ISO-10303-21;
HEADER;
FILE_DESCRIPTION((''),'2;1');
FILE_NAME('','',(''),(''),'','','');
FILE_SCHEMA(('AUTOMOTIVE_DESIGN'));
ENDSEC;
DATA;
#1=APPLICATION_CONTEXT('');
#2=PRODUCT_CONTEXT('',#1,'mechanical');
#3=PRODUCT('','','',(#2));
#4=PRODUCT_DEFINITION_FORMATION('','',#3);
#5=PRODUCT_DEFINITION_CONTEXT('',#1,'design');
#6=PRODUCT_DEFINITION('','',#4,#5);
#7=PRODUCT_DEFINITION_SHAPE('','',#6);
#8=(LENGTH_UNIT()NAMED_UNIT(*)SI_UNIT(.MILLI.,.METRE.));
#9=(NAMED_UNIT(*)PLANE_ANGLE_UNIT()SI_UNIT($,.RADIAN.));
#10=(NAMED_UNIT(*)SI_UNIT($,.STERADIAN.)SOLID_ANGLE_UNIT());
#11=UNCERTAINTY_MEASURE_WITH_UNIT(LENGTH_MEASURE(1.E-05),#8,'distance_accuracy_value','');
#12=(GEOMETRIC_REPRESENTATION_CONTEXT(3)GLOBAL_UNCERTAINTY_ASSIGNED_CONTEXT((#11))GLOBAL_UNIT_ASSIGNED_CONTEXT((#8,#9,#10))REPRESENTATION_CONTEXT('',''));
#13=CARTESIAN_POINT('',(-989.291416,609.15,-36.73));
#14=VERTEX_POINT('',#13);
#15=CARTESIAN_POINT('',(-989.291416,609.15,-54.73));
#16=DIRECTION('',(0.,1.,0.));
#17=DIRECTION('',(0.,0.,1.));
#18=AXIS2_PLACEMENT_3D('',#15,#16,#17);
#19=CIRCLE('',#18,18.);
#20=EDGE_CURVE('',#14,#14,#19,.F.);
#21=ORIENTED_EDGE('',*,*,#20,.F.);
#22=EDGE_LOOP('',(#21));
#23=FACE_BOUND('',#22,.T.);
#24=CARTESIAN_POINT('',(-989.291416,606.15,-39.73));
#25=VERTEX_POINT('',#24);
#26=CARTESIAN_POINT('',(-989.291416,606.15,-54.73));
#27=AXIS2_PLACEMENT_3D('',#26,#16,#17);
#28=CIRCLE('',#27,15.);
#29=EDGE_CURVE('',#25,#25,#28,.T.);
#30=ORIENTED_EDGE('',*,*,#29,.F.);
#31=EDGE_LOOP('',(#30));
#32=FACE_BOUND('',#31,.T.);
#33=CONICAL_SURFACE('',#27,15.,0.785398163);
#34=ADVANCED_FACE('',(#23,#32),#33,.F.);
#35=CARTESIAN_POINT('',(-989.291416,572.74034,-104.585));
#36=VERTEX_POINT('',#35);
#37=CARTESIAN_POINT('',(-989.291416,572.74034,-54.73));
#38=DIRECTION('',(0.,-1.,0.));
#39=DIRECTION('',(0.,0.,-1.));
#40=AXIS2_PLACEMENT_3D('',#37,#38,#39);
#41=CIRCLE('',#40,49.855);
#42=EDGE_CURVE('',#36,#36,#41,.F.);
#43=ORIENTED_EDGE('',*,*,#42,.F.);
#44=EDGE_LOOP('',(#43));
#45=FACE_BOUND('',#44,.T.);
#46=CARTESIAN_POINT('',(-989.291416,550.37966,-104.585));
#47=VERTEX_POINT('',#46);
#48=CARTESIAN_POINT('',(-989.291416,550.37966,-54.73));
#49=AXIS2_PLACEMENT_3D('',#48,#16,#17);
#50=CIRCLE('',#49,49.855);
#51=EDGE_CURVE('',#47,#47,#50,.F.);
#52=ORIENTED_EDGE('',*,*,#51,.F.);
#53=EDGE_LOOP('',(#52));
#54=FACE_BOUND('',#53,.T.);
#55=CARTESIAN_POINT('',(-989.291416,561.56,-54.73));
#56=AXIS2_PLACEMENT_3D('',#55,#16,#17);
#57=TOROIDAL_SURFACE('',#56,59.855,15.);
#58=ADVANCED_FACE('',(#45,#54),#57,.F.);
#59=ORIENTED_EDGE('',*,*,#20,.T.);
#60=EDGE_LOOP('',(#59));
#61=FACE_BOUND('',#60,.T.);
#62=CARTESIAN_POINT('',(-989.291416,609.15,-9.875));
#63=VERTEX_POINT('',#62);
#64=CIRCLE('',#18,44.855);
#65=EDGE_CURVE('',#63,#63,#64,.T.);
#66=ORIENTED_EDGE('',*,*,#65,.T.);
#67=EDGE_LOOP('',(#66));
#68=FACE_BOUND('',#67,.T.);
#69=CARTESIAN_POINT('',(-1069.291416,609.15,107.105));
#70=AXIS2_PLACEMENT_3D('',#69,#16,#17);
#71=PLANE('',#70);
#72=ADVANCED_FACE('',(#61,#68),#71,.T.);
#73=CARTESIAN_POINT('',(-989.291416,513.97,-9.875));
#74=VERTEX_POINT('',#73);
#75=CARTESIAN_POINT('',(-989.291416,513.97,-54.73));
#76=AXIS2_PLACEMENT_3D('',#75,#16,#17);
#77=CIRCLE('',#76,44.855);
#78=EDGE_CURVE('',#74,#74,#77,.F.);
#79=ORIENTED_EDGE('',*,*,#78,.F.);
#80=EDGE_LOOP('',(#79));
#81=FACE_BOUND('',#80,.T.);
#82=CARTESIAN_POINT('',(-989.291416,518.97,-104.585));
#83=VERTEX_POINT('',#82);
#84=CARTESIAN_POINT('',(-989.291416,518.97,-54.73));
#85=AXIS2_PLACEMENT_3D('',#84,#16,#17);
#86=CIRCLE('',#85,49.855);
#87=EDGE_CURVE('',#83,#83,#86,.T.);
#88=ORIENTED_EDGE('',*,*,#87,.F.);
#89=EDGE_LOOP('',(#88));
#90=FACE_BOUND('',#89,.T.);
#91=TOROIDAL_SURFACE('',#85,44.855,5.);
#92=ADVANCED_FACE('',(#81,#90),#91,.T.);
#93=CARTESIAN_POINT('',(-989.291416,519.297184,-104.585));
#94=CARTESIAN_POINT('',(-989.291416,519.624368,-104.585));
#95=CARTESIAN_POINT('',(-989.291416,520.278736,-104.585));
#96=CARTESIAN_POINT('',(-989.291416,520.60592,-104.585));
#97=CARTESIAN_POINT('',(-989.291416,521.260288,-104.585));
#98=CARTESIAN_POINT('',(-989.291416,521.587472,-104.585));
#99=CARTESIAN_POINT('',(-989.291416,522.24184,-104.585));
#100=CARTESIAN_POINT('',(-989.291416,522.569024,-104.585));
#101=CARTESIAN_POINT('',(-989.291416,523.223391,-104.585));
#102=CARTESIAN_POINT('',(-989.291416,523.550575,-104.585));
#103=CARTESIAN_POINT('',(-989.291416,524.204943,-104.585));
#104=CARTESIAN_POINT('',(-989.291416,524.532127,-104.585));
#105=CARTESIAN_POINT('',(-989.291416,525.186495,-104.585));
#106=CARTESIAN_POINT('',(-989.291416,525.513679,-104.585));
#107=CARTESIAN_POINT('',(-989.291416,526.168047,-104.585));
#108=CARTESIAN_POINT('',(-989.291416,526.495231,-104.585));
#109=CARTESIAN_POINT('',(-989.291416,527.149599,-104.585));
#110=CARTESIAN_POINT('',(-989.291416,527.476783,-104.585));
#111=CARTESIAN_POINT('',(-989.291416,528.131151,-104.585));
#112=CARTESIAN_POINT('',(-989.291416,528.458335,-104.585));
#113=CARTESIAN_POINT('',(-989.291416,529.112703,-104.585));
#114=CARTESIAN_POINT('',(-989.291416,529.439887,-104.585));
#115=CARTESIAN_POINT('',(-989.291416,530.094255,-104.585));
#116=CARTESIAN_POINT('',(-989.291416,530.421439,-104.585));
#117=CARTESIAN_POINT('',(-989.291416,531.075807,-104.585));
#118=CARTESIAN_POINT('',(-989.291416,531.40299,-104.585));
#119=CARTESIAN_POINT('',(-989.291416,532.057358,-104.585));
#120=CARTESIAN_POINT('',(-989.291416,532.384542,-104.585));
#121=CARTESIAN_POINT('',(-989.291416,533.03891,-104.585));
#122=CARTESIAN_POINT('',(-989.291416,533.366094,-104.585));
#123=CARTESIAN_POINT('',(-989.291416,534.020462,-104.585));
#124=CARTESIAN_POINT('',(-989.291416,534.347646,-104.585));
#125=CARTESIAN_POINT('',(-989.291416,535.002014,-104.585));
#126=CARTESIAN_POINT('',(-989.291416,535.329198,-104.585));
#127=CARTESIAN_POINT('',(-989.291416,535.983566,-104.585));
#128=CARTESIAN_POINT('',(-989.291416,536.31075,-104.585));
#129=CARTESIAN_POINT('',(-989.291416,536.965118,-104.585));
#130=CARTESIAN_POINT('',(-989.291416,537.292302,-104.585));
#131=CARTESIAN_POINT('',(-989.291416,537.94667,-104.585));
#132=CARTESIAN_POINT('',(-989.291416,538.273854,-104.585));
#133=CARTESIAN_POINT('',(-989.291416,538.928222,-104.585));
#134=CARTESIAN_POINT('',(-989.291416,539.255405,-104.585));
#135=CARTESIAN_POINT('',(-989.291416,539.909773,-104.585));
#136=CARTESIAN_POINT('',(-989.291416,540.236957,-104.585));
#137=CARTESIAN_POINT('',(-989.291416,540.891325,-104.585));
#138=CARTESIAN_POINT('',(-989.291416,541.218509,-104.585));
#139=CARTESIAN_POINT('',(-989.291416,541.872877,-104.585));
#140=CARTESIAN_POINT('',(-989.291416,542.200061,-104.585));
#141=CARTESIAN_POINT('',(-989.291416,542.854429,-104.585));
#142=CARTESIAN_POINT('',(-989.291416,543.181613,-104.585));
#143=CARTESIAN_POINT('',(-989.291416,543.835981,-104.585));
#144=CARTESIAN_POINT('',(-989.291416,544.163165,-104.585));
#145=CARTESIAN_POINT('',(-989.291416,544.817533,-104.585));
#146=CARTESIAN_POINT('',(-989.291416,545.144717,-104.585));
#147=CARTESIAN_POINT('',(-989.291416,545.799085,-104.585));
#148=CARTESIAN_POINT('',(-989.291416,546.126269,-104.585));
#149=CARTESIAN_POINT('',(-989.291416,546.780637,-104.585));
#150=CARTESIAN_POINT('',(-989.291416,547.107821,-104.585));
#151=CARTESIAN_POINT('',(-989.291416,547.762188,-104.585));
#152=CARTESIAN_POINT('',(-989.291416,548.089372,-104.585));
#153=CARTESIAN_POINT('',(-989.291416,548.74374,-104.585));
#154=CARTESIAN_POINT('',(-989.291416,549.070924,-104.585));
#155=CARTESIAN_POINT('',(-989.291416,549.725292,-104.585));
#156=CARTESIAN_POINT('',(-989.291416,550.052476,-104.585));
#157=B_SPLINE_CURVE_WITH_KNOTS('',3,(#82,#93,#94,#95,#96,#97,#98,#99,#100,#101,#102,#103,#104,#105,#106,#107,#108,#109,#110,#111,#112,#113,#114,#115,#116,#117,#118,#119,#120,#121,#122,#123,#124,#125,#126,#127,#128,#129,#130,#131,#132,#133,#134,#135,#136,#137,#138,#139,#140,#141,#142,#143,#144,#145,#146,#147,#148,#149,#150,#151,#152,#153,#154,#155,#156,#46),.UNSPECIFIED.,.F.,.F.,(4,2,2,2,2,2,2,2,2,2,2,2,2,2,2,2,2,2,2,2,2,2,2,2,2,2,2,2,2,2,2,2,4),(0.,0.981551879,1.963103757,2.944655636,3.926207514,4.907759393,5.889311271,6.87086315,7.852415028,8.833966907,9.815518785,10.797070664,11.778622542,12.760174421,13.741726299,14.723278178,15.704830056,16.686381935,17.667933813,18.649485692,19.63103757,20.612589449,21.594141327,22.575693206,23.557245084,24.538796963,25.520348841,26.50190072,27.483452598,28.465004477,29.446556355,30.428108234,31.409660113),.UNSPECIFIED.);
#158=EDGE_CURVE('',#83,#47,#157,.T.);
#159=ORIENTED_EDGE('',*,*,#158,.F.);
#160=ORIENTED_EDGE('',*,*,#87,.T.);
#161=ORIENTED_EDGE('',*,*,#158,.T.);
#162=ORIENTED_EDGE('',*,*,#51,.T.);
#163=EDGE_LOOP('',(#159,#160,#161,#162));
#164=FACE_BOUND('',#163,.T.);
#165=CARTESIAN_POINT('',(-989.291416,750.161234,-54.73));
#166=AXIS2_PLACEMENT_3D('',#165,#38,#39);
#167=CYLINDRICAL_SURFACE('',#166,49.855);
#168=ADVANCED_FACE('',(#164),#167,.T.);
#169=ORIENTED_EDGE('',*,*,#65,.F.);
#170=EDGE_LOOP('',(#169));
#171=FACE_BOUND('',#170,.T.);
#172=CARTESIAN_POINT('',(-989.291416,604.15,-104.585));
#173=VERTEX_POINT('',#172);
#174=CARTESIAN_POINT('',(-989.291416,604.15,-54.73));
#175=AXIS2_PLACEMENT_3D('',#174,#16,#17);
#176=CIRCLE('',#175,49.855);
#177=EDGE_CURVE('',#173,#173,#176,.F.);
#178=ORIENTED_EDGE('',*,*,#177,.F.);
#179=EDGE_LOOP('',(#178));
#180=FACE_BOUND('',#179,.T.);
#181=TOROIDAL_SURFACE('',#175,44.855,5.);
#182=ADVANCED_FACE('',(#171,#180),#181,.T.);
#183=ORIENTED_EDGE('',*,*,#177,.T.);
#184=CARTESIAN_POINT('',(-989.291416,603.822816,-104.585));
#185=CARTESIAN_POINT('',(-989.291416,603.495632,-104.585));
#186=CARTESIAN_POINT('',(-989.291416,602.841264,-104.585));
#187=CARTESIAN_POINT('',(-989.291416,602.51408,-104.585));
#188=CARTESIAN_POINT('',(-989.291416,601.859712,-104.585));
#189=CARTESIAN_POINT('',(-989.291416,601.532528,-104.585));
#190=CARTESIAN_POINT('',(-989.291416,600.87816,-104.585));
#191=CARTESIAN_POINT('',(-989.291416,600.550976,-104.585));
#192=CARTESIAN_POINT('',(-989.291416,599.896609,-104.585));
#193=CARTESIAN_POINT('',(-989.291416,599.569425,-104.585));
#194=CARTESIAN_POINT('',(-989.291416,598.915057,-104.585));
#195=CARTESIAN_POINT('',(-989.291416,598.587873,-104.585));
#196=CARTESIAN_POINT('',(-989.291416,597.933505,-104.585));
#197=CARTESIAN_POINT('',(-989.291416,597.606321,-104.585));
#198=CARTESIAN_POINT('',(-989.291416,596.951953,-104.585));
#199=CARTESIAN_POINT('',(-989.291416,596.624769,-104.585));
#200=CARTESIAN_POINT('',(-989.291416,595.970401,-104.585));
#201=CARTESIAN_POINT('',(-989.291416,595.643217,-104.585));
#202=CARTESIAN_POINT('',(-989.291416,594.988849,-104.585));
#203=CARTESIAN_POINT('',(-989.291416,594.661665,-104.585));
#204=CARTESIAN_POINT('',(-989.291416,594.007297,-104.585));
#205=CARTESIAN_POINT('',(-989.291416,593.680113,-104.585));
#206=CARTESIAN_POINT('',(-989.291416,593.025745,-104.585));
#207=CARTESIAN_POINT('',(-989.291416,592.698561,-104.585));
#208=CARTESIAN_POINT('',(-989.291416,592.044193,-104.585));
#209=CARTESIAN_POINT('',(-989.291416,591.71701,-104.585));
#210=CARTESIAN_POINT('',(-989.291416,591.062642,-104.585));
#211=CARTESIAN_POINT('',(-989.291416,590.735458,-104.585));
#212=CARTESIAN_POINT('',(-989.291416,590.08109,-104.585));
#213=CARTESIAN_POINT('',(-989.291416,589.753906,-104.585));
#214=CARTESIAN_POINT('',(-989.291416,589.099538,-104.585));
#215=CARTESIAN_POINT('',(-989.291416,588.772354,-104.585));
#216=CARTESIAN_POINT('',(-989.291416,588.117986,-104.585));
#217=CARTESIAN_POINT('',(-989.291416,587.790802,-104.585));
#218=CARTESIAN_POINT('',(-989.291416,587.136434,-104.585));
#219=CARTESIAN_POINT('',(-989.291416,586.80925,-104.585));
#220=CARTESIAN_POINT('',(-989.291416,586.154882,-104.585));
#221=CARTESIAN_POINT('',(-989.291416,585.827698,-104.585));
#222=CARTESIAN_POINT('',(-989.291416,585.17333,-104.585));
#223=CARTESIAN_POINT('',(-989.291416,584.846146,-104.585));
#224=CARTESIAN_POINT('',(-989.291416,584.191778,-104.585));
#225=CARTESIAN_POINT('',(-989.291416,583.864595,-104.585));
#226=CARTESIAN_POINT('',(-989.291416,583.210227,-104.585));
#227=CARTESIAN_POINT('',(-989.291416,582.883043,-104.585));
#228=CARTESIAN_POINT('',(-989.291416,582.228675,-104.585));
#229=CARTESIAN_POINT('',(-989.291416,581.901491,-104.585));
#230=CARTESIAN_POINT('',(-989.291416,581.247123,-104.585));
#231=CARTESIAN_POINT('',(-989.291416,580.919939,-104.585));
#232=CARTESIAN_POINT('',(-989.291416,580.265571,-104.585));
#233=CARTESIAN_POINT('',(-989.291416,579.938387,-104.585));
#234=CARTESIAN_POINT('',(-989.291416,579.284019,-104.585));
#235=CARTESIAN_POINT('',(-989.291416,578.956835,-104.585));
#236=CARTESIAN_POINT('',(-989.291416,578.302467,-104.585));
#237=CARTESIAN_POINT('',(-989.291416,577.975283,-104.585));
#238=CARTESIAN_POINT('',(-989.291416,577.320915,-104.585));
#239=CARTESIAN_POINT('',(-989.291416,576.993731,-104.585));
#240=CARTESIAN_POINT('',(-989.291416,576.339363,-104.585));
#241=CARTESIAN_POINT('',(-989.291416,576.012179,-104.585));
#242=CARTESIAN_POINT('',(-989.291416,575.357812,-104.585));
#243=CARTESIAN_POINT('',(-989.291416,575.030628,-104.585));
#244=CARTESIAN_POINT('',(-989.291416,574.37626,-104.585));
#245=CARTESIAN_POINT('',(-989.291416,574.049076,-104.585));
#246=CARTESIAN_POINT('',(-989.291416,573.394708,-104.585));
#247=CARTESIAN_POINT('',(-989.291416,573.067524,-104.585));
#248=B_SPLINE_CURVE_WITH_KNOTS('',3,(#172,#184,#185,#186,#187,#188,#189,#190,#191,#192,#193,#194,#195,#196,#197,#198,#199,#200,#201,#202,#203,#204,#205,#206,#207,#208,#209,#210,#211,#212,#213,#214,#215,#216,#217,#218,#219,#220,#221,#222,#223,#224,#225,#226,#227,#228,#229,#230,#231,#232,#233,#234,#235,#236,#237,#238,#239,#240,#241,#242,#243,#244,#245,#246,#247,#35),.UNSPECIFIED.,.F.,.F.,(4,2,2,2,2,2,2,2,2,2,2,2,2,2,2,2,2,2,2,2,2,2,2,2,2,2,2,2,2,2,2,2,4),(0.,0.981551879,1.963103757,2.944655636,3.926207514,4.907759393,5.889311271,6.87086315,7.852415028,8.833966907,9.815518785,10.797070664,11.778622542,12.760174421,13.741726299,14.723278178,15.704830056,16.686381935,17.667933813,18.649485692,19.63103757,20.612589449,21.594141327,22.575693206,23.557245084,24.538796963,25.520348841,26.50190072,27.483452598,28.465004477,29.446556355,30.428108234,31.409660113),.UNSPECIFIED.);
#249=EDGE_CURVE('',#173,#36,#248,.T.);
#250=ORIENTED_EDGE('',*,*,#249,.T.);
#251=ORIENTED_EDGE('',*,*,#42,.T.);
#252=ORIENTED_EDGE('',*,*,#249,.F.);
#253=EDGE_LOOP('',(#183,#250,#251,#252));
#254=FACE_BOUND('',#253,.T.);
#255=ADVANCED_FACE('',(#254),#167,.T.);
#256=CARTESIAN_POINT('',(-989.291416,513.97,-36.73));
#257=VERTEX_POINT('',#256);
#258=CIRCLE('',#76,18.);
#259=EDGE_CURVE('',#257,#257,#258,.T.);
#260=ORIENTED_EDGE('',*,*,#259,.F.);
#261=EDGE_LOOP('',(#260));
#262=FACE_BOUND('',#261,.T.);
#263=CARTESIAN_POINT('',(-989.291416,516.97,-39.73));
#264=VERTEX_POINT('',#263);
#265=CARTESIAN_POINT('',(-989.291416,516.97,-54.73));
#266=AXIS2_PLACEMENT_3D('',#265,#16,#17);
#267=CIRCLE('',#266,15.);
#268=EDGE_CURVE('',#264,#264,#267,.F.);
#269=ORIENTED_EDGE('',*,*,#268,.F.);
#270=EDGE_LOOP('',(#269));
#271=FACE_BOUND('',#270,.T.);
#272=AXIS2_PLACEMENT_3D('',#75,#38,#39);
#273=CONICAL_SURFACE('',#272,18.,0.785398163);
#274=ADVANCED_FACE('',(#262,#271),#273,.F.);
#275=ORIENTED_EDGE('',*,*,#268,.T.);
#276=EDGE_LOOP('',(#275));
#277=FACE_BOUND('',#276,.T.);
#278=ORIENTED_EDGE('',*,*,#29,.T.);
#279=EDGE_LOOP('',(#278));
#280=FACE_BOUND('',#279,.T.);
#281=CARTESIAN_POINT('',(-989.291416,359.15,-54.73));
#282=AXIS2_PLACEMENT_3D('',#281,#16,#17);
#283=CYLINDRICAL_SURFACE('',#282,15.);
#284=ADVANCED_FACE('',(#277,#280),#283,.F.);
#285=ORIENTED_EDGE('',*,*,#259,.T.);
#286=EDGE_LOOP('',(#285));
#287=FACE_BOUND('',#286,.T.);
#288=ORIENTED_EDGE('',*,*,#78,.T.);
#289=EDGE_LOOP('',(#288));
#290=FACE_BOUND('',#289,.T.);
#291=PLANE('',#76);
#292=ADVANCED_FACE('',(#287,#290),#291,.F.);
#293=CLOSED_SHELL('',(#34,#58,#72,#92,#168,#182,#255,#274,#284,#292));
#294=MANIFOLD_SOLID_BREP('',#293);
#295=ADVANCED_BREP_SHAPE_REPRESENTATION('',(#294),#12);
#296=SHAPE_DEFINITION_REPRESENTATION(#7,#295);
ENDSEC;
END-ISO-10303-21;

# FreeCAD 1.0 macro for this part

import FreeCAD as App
import Part
import Sketcher
from FreeCAD import Vector


def edges_at(feature, points):
    """Names of the edges that pass closest to the given points."""
    edges = feature.Shape.Edges
    near = lambda p: min(range(len(edges)), key=lambda i: edges[i].distToShape(Part.Vertex(*p))[0])
    return sorted({f"Edge{near(p) + 1}" for p in points})

doc = App.newDocument("Part")
body = doc.addObject("PartDesign::Body", "Body")

sketch1 = body.newObject("Sketcher::SketchObject", "Sketch")
sketch1.AttachmentSupport = (doc.getObject("XZ_Plane"), [""])
sketch1.MapMode = "FlatFace"
sketch1.AttachmentOffset = App.Placement(Vector(0, 0, -513.97), App.Rotation())
sketch1.addGeometry(Part.Circle(Vector(-989, -55, 0), Vector(0, 0, 1), 50), False)
sketch1.addConstraint([
    Sketcher.Constraint("Diameter", 0, 99.71),
    Sketcher.Constraint("DistanceY", 0, 3, -1, 1, 54.73),
    Sketcher.Constraint("DistanceX", 0, 3, -1, 1, 989.291416),
])
pad1 = body.newObject("PartDesign::Pad", "Pad")
pad1.Profile = sketch1
pad1.Length = 95.18
pad1.Reversed = True

sketch2 = body.newObject("Sketcher::SketchObject", "Sketch001")
sketch2.AttachmentSupport = (doc.getObject("XY_Plane"), [""])
sketch2.MapMode = "FlatFace"
sketch2.AttachmentOffset = App.Placement(Vector(0, 0, -54.73), App.Rotation())
sketch2.addGeometry(Part.Circle(Vector(-1049, 562, 0), Vector(0, 0, 1), 15), False)
sketch2.addGeometry(Part.LineSegment(Vector(-989, 562, 0), Vector(-989, 552, 0)), True)
sketch2.addConstraint([
    Sketcher.Constraint("Vertical", 1),
    Sketcher.Constraint("Horizontal", 0, 3, 1, 1),
    Sketcher.Constraint("Diameter", 0, 30.0),
    Sketcher.Constraint("DistanceY", 1, 2, 1, 1, 10.0),
    Sketcher.Constraint("DistanceY", -1, 1, 0, 3, 561.56),
    Sketcher.Constraint("DistanceX", 0, 3, 1, 1, 59.855),
    Sketcher.Constraint("DistanceX", 0, 3, -1, 1, 1049.146416),
])
groove = body.newObject("PartDesign::Groove", "Groove")
groove.Profile = sketch2
groove.ReferenceAxis = (sketch2, ["Axis0"])
groove.Angle = 360

sketch3 = body.newObject("Sketcher::SketchObject", "Sketch002")
sketch3.AttachmentSupport = (doc.getObject("XZ_Plane"), [""])
sketch3.MapMode = "FlatFace"
sketch3.AttachmentOffset = App.Placement(Vector(0, 0, -609.15), App.Rotation())
sketch3.addGeometry(Part.Circle(Vector(-989, -55, 0), Vector(0, 0, 1), 15), False)
sketch3.addConstraint([
    Sketcher.Constraint("Diameter", 0, 30.0),
    Sketcher.Constraint("DistanceY", 0, 3, -1, 1, 54.73),
    Sketcher.Constraint("DistanceX", 0, 3, -1, 1, 989.291416),
])
pocket1 = body.newObject("PartDesign::Pocket", "Pocket")
pocket1.Profile = sketch3
pocket1.Length = 500
pocket1.Midplane = True
doc.recompute()

chamfer = body.newObject("PartDesign::Chamfer", "Chamfer")
chamfer.Base = (pocket1, edges_at(pocket1, [(-989.291, 609.15, -69.73), (-989.291, 513.97, -69.73)]))
chamfer.Size = 3
doc.recompute()

fillet = body.newObject("PartDesign::Fillet", "Fillet")
fillet.Base = (chamfer, edges_at(chamfer, [(-989.291, 513.97, -4.875), (-989.291, 609.15, -4.875)]))
fillet.Radius = 5

doc.recompute()
